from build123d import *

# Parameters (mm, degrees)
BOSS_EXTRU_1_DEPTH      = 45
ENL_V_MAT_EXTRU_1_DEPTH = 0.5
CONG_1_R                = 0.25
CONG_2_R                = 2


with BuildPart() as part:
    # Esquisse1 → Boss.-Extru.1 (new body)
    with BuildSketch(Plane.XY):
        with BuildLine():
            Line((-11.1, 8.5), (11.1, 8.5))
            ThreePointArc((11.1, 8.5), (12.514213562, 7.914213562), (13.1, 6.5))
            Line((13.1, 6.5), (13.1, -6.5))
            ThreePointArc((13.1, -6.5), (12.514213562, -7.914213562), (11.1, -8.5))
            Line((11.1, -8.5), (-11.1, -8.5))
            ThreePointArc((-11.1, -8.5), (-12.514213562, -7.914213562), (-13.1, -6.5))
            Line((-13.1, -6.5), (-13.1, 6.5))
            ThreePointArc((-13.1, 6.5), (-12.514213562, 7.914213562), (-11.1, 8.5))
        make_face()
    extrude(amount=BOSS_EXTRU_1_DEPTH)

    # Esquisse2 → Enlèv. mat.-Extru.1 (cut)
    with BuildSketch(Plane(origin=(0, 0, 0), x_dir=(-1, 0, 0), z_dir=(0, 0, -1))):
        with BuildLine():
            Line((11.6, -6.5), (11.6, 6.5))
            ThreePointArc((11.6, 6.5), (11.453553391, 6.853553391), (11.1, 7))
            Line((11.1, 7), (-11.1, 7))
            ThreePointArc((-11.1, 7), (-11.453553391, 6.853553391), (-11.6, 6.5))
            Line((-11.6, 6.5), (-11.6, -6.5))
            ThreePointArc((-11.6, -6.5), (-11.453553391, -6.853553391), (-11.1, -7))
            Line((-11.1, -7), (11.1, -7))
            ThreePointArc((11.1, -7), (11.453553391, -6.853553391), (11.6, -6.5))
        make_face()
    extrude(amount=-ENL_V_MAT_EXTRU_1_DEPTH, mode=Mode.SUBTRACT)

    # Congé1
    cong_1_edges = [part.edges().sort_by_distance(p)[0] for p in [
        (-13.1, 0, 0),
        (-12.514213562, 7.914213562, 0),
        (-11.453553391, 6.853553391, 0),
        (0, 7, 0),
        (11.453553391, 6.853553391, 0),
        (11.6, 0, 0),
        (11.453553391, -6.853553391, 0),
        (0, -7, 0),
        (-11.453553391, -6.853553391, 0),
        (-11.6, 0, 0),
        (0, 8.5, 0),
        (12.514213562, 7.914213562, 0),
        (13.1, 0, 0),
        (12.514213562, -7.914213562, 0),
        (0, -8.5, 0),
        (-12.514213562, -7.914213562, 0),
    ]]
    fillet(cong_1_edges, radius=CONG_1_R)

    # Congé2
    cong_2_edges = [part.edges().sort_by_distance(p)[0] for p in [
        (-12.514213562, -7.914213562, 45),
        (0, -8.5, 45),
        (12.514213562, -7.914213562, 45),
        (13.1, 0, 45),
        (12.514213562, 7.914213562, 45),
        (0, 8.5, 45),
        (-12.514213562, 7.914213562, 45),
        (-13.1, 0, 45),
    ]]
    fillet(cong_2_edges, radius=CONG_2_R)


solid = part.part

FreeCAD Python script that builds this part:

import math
import FreeCAD as App
import Part
import Sketcher
from FreeCAD import Vector


def edges_at(feature, points):
    """Names of the edges that pass closest to the given points."""
    edges = feature.Shape.Edges
    near = lambda p: min(range(len(edges)), key=lambda i: edges[i].distToShape(Part.Vertex(*p))[0])
    return sorted({f"Edge{near(p) + 1}" for p in points})

doc = App.newDocument("Part")
body = doc.addObject("PartDesign::Body", "Body")

# Sketch on XY plane
sketch1 = body.newObject("Sketcher::SketchObject", "Sketch")
sketch1.AttachmentSupport = (doc.getObject("XY_Plane"), [""])
sketch1.MapMode = "FlatFace"
sketch1.addGeometry([
    Part.LineSegment(Vector(11.1, 8.5, 0), Vector(-11.1, 8.5, 0)),  # 0
    Part.ArcOfCircle(Part.Circle(Vector(-11.1, 6.5, 0), Vector(0, 0, 1), 2), math.radians(90), math.radians(180)),  # 1
    Part.LineSegment(Vector(-13.1, 6.5, 0), Vector(-13.1, -6.5, 0)),  # 2
    Part.ArcOfCircle(Part.Circle(Vector(-11.1, -6.5, 0), Vector(0, 0, 1), 2), math.radians(-180), math.radians(-90)),  # 3
    Part.LineSegment(Vector(-11.1, -8.5, 0), Vector(11.1, -8.5, 0)),  # 4
    Part.ArcOfCircle(Part.Circle(Vector(11.1, -6.5, 0), Vector(0, 0, 1), 2), math.radians(-90), math.radians(0)),  # 5
    Part.LineSegment(Vector(13.1, -6.5, 0), Vector(13.1, 6.5, 0)),  # 6
    Part.ArcOfCircle(Part.Circle(Vector(11.1, 6.5, 0), Vector(0, 0, 1), 2), math.radians(0), math.radians(90)),  # 7
], False)
sketch1.addConstraint([
    Sketcher.Constraint("Tangent", 0, 2, 1, 1),
    Sketcher.Constraint("Tangent", 1, 2, 2, 1),
    Sketcher.Constraint("Tangent", 2, 2, 3, 1),
    Sketcher.Constraint("Tangent", 3, 2, 4, 1),
    Sketcher.Constraint("Tangent", 4, 2, 5, 1),
    Sketcher.Constraint("Tangent", 5, 2, 6, 1),
    Sketcher.Constraint("Tangent", 6, 2, 7, 1),
    Sketcher.Constraint("Tangent", 7, 2, 0, 1),
    Sketcher.Constraint("Horizontal", 0),
    Sketcher.Constraint("Vertical", 2),
    Sketcher.Constraint("Horizontal", 4),
    Sketcher.Constraint("Vertical", 6),
    Sketcher.Constraint("Equal", 1, 3),
    Sketcher.Constraint("Equal", 3, 5),
    Sketcher.Constraint("Equal", 5, 7),
    Sketcher.Constraint("Symmetric", 1, 3, 5, 3, -1, 1),
    Sketcher.Constraint("Radius", 1, 2.0),
    Sketcher.Constraint("DistanceY", 2, 2, 2, 1, 13.0),
    Sketcher.Constraint("DistanceX", 0, 2, 0, 1, 22.2),
])
pad1 = body.newObject("PartDesign::Pad", "Pad")
pad1.Profile = sketch1
pad1.Length = 45

# Sketch on XY plane
sketch2 = body.newObject("Sketcher::SketchObject", "Sketch001")
sketch2.AttachmentSupport = (doc.getObject("XY_Plane"), [""])
sketch2.MapMode = "FlatFace"
sketch2.addGeometry([
    Part.LineSegment(Vector(-11.6, -6.5, 0), Vector(-11.6, 6.5, 0)),  # 0
    Part.ArcOfCircle(Part.Circle(Vector(-11.1, 6.5, 0), Vector(0, 0, 1), 0.5), math.radians(90), math.radians(180)),  # 1
    Part.LineSegment(Vector(-11.1, 7, 0), Vector(11.1, 7, 0)),  # 2
    Part.ArcOfCircle(Part.Circle(Vector(11.1, 6.5, 0), Vector(0, 0, 1), 0.5), math.radians(0), math.radians(90)),  # 3
    Part.LineSegment(Vector(11.6, 6.5, 0), Vector(11.6, -6.5, 0)),  # 4
    Part.ArcOfCircle(Part.Circle(Vector(11.1, -6.5, 0), Vector(0, 0, 1), 0.5), math.radians(-90), math.radians(0)),  # 5
    Part.LineSegment(Vector(11.1, -7, 0), Vector(-11.1, -7, 0)),  # 6
    Part.ArcOfCircle(Part.Circle(Vector(-11.1, -6.5, 0), Vector(0, 0, 1), 0.5), math.radians(180), math.radians(270)),  # 7
], False)
sketch2.addConstraint([
    Sketcher.Constraint("Tangent", 0, 2, 1, 2),
    Sketcher.Constraint("Tangent", 1, 1, 2, 1),
    Sketcher.Constraint("Tangent", 2, 2, 3, 2),
    Sketcher.Constraint("Tangent", 3, 1, 4, 1),
    Sketcher.Constraint("Tangent", 4, 2, 5, 2),
    Sketcher.Constraint("Tangent", 5, 1, 6, 1),
    Sketcher.Constraint("Tangent", 6, 2, 7, 2),
    Sketcher.Constraint("Tangent", 7, 1, 0, 1),
    Sketcher.Constraint("Vertical", 0),
    Sketcher.Constraint("Horizontal", 2),
    Sketcher.Constraint("Vertical", 4),
    Sketcher.Constraint("Horizontal", 6),
    Sketcher.Constraint("Equal", 1, 3),
    Sketcher.Constraint("Equal", 3, 5),
    Sketcher.Constraint("Equal", 5, 7),
    Sketcher.Constraint("Symmetric", 1, 3, 5, 3, -1, 1),
    Sketcher.Constraint("Radius", 1, 0.5),
    Sketcher.Constraint("DistanceY", 0, 1, 0, 2, 13.0),
    Sketcher.Constraint("DistanceX", 2, 1, 2, 2, 22.2),
])
pocket1 = body.newObject("PartDesign::Pocket", "Pocket")
pocket1.Profile = sketch2
pocket1.Length = 0.5
pocket1.Reversed = True
doc.recompute()

fillet = body.newObject("PartDesign::Fillet", "Fillet")
fillet.Base = (pocket1, edges_at(pocket1, [
    (-13.1, 0, 0),
    (-12.514, 7.914, 0),
    (-11.454, 6.854, 0),
    (0, 7, 0),
    (11.454, 6.854, 0),
    (11.6, 0, 0),
    (11.454, -6.854, 0),
    (0, -7, 0),
    (-11.454, -6.854, 0),
    (-11.6, 0, 0),
    (0, 8.5, 0),
    (12.514, 7.914, 0),
    (13.1, 0, 0),
    (12.514, -7.914, 0),
    (0, -8.5, 0),
    (-12.514, -7.914, 0),
]))
fillet.Radius = 0.25
doc.recompute()

fillet2 = body.newObject("PartDesign::Fillet", "Fillet001")
fillet2.Base = (fillet, edges_at(fillet, [
    (-12.514, -7.914, 45),
    (0, -8.5, 45),
    (12.514, -7.914, 45),
    (13.1, 0, 45),
    (12.514, 7.914, 45),
    (0, 8.5, 45),
    (-12.514, 7.914, 45),
    (-13.1, 0, 45),
]))
fillet2.Radius = 2

doc.recompute()
